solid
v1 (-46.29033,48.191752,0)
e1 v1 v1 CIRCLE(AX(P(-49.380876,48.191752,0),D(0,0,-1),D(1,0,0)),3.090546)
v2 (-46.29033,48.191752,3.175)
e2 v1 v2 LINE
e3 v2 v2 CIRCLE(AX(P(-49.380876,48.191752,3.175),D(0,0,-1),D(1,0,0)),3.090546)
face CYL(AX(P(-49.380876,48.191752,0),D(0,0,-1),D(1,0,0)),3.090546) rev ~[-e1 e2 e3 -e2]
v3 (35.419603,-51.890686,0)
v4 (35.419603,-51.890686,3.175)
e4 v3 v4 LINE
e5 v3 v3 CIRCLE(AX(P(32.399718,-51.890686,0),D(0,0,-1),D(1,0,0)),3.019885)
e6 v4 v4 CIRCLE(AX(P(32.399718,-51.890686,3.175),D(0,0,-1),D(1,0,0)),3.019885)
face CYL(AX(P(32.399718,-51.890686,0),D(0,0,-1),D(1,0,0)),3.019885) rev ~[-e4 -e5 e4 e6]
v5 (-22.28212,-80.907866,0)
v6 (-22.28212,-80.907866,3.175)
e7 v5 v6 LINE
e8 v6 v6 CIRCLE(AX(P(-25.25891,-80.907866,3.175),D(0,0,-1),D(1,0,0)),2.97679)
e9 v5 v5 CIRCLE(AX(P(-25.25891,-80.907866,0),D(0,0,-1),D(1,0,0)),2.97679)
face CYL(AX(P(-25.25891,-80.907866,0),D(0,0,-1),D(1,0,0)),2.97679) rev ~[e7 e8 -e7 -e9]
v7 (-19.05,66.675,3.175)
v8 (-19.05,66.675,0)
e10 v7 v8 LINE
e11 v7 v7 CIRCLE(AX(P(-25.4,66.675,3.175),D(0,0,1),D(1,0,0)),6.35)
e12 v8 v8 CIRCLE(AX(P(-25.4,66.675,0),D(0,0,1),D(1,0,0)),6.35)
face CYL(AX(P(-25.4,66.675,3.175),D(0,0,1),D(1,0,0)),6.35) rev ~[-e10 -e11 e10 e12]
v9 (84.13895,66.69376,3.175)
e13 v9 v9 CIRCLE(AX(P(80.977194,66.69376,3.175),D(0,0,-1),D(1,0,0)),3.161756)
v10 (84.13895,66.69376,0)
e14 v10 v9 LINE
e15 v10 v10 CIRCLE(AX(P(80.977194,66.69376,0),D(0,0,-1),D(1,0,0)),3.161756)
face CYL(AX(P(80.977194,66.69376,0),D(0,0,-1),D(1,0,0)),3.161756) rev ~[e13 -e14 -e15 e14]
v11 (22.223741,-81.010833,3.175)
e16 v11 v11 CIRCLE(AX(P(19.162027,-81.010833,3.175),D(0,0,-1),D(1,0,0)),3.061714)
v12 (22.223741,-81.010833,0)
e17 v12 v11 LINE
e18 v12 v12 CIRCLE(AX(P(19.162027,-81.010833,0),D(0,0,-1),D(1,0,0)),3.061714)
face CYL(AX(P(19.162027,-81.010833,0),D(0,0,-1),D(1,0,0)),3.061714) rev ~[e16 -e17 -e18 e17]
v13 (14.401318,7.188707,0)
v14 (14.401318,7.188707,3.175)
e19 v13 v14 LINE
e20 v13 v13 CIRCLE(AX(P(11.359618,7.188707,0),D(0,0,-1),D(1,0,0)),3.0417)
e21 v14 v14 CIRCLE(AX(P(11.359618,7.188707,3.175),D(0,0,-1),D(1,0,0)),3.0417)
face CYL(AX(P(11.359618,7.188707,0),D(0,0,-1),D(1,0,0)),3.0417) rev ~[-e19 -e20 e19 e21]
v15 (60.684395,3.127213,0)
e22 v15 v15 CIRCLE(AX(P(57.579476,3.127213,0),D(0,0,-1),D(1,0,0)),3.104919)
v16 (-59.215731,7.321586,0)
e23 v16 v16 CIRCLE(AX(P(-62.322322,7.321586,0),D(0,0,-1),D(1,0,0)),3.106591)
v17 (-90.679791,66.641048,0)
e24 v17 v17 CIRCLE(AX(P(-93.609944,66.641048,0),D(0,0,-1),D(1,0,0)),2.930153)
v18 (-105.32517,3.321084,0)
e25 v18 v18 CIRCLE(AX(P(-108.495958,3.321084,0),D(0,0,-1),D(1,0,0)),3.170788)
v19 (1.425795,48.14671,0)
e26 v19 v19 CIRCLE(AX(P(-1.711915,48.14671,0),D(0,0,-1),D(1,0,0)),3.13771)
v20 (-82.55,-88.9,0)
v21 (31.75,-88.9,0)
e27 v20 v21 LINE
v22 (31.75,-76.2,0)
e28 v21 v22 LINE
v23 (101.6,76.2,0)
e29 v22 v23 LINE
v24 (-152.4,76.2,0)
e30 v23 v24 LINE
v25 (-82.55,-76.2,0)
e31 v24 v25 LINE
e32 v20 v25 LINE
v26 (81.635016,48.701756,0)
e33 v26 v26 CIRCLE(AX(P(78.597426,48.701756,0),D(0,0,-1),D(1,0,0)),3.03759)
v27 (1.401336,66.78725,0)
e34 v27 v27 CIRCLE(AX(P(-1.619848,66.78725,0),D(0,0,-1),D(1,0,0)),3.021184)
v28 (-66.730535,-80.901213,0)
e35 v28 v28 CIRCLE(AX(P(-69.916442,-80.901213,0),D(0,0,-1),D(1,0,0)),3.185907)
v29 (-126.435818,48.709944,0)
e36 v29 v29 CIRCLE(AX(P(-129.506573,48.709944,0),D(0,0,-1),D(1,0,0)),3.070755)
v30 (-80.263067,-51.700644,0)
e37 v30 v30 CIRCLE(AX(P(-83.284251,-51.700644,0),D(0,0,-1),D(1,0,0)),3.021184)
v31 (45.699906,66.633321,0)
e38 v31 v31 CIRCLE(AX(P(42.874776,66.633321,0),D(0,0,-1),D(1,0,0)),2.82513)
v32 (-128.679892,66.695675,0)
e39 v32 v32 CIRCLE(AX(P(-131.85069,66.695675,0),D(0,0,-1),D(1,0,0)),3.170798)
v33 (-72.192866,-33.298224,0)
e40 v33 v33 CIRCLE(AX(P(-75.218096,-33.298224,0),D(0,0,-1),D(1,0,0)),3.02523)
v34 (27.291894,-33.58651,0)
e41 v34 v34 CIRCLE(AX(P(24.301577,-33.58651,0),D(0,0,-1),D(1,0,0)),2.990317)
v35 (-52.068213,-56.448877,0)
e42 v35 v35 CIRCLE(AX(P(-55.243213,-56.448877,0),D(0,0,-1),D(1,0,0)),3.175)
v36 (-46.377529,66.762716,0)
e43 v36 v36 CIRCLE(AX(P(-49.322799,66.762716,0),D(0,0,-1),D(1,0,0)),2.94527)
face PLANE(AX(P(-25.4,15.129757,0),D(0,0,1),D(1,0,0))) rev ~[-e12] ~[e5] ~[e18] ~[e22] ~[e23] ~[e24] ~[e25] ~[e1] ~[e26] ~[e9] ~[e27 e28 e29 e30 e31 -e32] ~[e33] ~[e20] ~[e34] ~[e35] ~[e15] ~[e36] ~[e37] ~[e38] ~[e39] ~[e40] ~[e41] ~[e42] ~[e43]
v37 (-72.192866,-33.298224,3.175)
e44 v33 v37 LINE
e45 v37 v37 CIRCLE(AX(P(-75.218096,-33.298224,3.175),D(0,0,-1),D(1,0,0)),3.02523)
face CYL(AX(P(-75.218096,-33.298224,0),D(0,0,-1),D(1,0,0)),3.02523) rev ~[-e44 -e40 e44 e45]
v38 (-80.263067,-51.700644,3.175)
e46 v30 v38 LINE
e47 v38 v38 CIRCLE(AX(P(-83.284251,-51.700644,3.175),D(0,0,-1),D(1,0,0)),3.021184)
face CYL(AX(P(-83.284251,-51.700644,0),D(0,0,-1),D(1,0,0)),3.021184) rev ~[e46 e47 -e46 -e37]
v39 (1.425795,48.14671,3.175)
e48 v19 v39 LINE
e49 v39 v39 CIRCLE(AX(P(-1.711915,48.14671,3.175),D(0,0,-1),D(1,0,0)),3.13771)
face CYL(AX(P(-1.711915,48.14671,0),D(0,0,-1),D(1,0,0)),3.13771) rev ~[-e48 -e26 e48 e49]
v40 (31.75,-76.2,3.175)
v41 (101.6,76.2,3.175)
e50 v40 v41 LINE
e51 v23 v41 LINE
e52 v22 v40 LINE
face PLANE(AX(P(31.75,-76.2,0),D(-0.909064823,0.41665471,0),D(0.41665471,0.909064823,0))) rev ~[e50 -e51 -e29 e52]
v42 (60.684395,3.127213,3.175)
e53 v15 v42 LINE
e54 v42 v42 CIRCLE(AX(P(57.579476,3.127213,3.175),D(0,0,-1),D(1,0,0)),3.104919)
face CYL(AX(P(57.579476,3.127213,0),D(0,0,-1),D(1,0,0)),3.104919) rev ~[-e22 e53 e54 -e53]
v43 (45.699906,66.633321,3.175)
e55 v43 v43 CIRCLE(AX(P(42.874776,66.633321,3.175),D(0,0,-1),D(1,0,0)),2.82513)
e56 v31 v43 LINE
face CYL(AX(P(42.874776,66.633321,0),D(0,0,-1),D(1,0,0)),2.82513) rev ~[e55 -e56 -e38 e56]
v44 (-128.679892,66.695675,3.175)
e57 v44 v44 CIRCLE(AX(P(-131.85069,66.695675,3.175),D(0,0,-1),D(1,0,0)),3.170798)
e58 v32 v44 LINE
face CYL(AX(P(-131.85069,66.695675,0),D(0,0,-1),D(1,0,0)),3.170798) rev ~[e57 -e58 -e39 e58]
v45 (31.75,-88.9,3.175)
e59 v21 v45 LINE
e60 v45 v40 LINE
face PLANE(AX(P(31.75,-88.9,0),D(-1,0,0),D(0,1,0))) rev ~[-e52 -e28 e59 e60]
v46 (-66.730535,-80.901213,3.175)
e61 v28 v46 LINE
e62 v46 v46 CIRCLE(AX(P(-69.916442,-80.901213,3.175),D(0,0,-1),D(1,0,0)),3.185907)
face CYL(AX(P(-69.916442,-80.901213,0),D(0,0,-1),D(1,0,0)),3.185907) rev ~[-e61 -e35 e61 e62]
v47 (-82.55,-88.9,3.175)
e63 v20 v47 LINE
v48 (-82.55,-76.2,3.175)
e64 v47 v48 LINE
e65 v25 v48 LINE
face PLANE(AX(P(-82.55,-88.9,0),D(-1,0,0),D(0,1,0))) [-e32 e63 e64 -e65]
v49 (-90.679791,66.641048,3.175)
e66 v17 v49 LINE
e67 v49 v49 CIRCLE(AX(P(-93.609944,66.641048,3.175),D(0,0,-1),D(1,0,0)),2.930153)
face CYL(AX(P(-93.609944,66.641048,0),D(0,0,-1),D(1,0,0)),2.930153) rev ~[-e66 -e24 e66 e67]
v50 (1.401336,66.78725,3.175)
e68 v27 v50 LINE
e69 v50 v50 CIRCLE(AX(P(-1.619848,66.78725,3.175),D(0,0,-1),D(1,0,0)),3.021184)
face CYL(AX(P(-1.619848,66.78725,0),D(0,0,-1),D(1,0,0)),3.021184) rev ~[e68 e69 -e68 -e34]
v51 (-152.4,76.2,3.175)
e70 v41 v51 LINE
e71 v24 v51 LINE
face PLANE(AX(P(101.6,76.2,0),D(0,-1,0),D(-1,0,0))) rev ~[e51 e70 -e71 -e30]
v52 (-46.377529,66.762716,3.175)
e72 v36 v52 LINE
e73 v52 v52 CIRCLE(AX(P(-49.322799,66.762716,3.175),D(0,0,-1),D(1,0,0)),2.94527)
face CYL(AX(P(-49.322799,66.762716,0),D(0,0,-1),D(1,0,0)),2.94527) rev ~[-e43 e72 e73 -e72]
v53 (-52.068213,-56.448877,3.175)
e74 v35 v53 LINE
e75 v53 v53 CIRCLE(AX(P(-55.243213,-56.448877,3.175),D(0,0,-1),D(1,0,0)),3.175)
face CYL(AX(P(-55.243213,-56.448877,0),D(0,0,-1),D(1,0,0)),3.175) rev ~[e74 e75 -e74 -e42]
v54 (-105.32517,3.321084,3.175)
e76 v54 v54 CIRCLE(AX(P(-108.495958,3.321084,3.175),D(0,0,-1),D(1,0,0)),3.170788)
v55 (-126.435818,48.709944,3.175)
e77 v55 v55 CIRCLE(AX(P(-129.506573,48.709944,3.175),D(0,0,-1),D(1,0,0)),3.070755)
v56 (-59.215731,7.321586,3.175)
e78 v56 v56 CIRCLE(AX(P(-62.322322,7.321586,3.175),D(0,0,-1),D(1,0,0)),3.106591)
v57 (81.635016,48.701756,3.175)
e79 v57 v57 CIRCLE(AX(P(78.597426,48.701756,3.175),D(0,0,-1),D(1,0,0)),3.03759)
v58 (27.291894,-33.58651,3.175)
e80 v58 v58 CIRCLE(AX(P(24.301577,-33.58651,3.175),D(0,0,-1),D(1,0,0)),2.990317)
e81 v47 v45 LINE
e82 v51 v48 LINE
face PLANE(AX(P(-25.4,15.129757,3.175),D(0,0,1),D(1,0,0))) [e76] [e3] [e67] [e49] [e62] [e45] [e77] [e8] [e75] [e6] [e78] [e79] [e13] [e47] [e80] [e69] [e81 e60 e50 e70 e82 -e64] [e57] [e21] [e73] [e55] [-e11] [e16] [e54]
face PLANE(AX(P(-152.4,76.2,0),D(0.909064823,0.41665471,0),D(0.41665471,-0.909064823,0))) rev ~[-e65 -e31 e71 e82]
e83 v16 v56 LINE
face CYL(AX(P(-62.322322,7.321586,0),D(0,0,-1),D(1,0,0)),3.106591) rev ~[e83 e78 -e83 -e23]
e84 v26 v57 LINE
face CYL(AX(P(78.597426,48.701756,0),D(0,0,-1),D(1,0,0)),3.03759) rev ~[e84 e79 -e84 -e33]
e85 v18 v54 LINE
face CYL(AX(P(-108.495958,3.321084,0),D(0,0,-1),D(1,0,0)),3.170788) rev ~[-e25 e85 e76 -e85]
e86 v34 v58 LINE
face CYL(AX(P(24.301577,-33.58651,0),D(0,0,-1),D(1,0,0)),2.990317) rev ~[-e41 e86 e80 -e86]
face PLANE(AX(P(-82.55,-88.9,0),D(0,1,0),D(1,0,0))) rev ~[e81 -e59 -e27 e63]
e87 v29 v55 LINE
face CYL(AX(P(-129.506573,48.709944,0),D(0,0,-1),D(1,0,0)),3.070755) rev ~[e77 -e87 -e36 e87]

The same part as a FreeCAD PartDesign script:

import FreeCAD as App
import Part
import Sketcher
Q = App.Units.Quantity


def add_polygon(sketch, points):
    """Adds a closed chain of lines whose ends are joined by coincident constraints."""
    first, n = sketch.GeometryCount, len(points)
    for a, b in zip(points, points[1:] + points[:1]):
        sketch.addGeometry(Part.LineSegment(App.Vector(*a, 0), App.Vector(*b, 0)), False)
    for i in range(n):
        sketch.addConstraint(Sketcher.Constraint("Coincident", first + i, 2, first + (i + 1) % n, 1))

doc = App.newDocument("Part")
params = doc.addObject("Spreadsheet::Sheet", "Params")
for row, (alias, value) in enumerate([
    ("sketch1_width", "10 in"),
    ("sketch1_width2", "4.5 in"),
    ("sketch1_height", "0.5 in"),
    ("pad1_length", "0.125 in"),
    ("sketch2_diameter", "0.5 in"),
    ("pocket1_length", "1 in"),
    ("pocket2_length", "1 in"),
    ("pocket3_length", "1 in"),
    ("sketch5_diameter", "0.25 in"),
    ("pocket4_length", "1 in"),
], start=1):
    params.set(f"A{row}", alias)
    params.set(f"B{row}", "=" + value)
    params.setAlias(f"B{row}", alias)

body = doc.addObject("PartDesign::Body", "Body")

sketch1 = body.newObject("Sketcher::SketchObject", "Sketch")
sketch1.AttachmentSupport = (doc.getObject("XY_Plane"), [""])
sketch1.MapMode = "FlatFace"
add_polygon(sketch1, [(31.75, -76.2), (101.6, 76.2), (-152.4, 76.2), (-82.55, -76.2), (-82.55, -88.9), (31.75, -88.9)])
sketch1.addConstraint([
    Sketcher.Constraint("Horizontal", 1),
    Sketcher.Constraint("Vertical", 3),
    Sketcher.Constraint("Horizontal", 4),
    Sketcher.Constraint("Vertical", 5),
    Sketcher.Constraint("Horizontal", 2, 2, 5, 2),
    Sketcher.Constraint("Equal", 0, 2),
    Sketcher.Constraint("DistanceX", 1, 2, 1, 1, Q("10 in")),
    Sketcher.Constraint("DistanceX", 4, 1, 4, 2, Q("4.5 in")),
    Sketcher.Constraint("DistanceY", 3, 2, 3, 1, Q("0.5 in")),
    Sketcher.Constraint("DistanceX", -1, 1, 0, 2, Q("4 in")),
    Sketcher.Constraint("DistanceY", -1, 1, 0, 2, Q("3 in")),
    Sketcher.Constraint("DistanceY", 2, 2, -1, 1, Q("3 in")),
])
sketch1.setExpression("Constraints[12]", "Params.sketch1_width")
sketch1.setExpression("Constraints[13]", "Params.sketch1_width2")
sketch1.setExpression("Constraints[14]", "Params.sketch1_height")
pad1 = body.newObject("PartDesign::Pad", "Pad")
pad1.Profile = sketch1
pad1.setExpression("Length", "Params.pad1_length")

sketch2 = body.newObject("Sketcher::SketchObject", "Sketch001")
sketch2.AttachmentSupport = (doc.getObject("XY_Plane"), [""])
sketch2.MapMode = "FlatFace"
sketch2.AttachmentOffset = App.Placement(App.Vector(0, 0, 0.125 * 25.4), App.Rotation())
sketch2.addGeometry(Part.Circle(App.Vector(-25.4, 66.675, 0), App.Vector(0, 0, 1), 6.35), False)
sketch2.addConstraint([
    Sketcher.Constraint("Diameter", 0, Q("0.5 in")),
    Sketcher.Constraint("DistanceX", 0, 3, -1, 1, Q("1 in")),
    Sketcher.Constraint("DistanceY", -1, 1, 0, 3, Q("2.625 in")),
])
sketch2.setExpression("Constraints[0]", "Params.sketch2_diameter")
pocket1 = body.newObject("PartDesign::Pocket", "Pocket")
pocket1.Profile = sketch2
pocket1.setExpression("Length", "Params.pocket1_length")

sketch3 = body.newObject("Sketcher::SketchObject", "Sketch002")
sketch3.AttachmentSupport = (doc.getObject("XY_Plane"), [""])
sketch3.MapMode = "FlatFace"
sketch3.addGeometry([
    Part.Circle(App.Vector(-83.284251, -51.700644, 0), App.Vector(0, 0, 1), 3.021184),
    Part.Circle(App.Vector(-75.218096, -33.298224, 0), App.Vector(0, 0, 1), 3.02523),
    Part.Circle(App.Vector(-108.495958, 3.321084, 0), App.Vector(0, 0, 1), 3.170788),
    Part.Circle(App.Vector(-129.506573, 48.709944, 0), App.Vector(0, 0, 1), 3.070755),
    Part.Circle(App.Vector(-131.85069, 66.695675, 0), App.Vector(0, 0, 1), 3.170798),
    Part.Circle(App.Vector(-93.609944, 66.641048, 0), App.Vector(0, 0, 1), 2.930153),
    Part.Circle(App.Vector(-49.322799, 66.762716, 0), App.Vector(0, 0, 1), 2.94527),
    Part.Circle(App.Vector(-49.380876, 48.191752, 0), App.Vector(0, 0, 1), 3.090546),
    Part.Circle(App.Vector(-62.322322, 7.321586, 0), App.Vector(0, 0, 1), 3.106591),
    Part.Circle(App.Vector(-1.619848, 66.78725, 0), App.Vector(0, 0, 1), 3.021184),
    Part.Circle(App.Vector(42.874776, 66.633321, 0), App.Vector(0, 0, 1), 2.82513),
    Part.Circle(App.Vector(80.977194, 66.69376, 0), App.Vector(0, 0, 1), 3.161756),
    Part.Circle(App.Vector(78.597426, 48.701756, 0), App.Vector(0, 0, 1), 3.03759),
    Part.Circle(App.Vector(-1.711915, 48.14671, 0), App.Vector(0, 0, 1), 3.13771),
    Part.Circle(App.Vector(11.359618, 7.188707, 0), App.Vector(0, 0, 1), 3.0417),
    Part.Circle(App.Vector(57.579476, 3.127213, 0), App.Vector(0, 0, 1), 3.104919),
    Part.Circle(App.Vector(24.301577, -33.58651, 0), App.Vector(0, 0, 1), 2.990317),
    Part.Circle(App.Vector(32.399718, -51.890686, 0), App.Vector(0, 0, 1), 3.019885),
], False)
sketch3.addConstraint([
    Sketcher.Constraint("Equal", 0, 9),
    Sketcher.Constraint("Diameter", 14, 6.0834),
    Sketcher.Constraint("Diameter", 1, 6.05046),
    Sketcher.Constraint("Diameter", 3, 6.14151),
    Sketcher.Constraint("Diameter", 6, 5.89054),
    Sketcher.Constraint("Diameter", 7, 6.181092),
    Sketcher.Constraint("Diameter", 8, 6.213182),
    Sketcher.Constraint("Diameter", 10, 5.65026),
    Sketcher.Constraint("Diameter", 12, 6.07518),
    Sketcher.Constraint("Diameter", 13, 6.27542),
    Sketcher.Constraint("Diameter", 15, 6.209838),
    Sketcher.Constraint("Diameter", 17, 6.03977),
    Sketcher.Constraint("Diameter", 0, 6.042368),
    Sketcher.Constraint("Diameter", 2, 6.341576),
    Sketcher.Constraint("Diameter", 4, 6.341596),
    Sketcher.Constraint("Diameter", 5, 5.860306),
    Sketcher.Constraint("Diameter", 11, 6.323512),
    Sketcher.Constraint("Diameter", 16, 5.980634),
    Sketcher.Constraint("DistanceX", 1, 3, 6, 3, Q("1.0194999 in")),
    Sketcher.Constraint("DistanceY", 2, 3, 8, 3, Q("0.1575001 in")),
    Sketcher.Constraint("DistanceX", 6, 3, -1, 1, 49.322799),
    Sketcher.Constraint("DistanceY", 1, 3, 4, 3, 99.993899),
    Sketcher.Constraint("DistanceX", 7, 3, 12, 3, 127.978302),
    Sketcher.Constraint("DistanceX", 10, 3, 15, 3, 14.7047),
    Sketcher.Constraint("DistanceX", 16, 3, 15, 3, 33.277899),
    Sketcher.Constraint("DistanceX", 8, 3, 16, 3, 86.623899),
    Sketcher.Constraint("DistanceY", 17, 3, 15, 3, 55.017899),
    Sketcher.Constraint("DistanceX", 14, 3, 17, 3, 21.0401),
    Sketcher.Constraint("DistanceX", 0, 3, -1, 1, 83.284251),
    Sketcher.Constraint("DistanceX", 2, 3, -1, 1, 108.495958),
    Sketcher.Constraint("DistanceX", 4, 3, -1, 1, 131.85069),
    Sketcher.Constraint("DistanceY", -1, 1, 9, 3, 66.78725),
    Sketcher.Constraint("DistanceY", -1, 1, 10, 3, 66.633321),
    Sketcher.Constraint("DistanceY", -1, 1, 11, 3, 66.69376),
    Sketcher.Constraint("DistanceY", -1, 1, 13, 3, 48.14671),
    Sketcher.Constraint("DistanceY", 16, 3, -1, 1, 33.58651),
    Sketcher.Constraint("DistanceY", 0, 3, 1, 3, 18.40242),
    Sketcher.Constraint("DistanceY", 2, 3, 3, 3, 45.38886),
    Sketcher.Constraint("DistanceY", 3, 3, 4, 3, 17.985731),
    Sketcher.Constraint("DistanceX", 3, 3, 5, 3, 35.896629),
    Sketcher.Constraint("DistanceY", 1, 3, 5, 3, 99.939272),
    Sketcher.Constraint("DistanceY", 3, 3, 6, 3, 18.052772),
    Sketcher.Constraint("DistanceY", 2, 3, 7, 3, 44.870668),
    Sketcher.Constraint("DistanceX", 0, 3, 8, 3, 20.961929),
    Sketcher.Constraint("DistanceX", 6, 3, 9, 3, 47.702951),
    Sketcher.Constraint("DistanceX", 7, 3, 9, 3, 47.761028),
    Sketcher.Constraint("DistanceY", 7, 3, 10, 3, 18.441569),
    Sketcher.Constraint("DistanceX", 5, 3, 10, 3, 136.48472),
    Sketcher.Constraint("DistanceX", 9, 3, 11, 3, 82.597042),
    Sketcher.Constraint("DistanceY", 12, 3, 6, 3, 18.06096),
    Sketcher.Constraint("DistanceX", 7, 3, 13, 3, 47.668961),
    Sketcher.Constraint("DistanceX", 8, 3, 14, 3, 73.68194),
    Sketcher.Constraint("DistanceY", 14, 3, 8, 3, 0.132879),
    Sketcher.Constraint("DistanceY", -1, 1, 15, 3, 3.127213),
])
pocket2 = body.newObject("PartDesign::Pocket", "Pocket001")
pocket2.Profile = sketch3
pocket2.setExpression("Length", "Params.pocket2_length")
pocket2.Reversed = True

sketch4 = body.newObject("Sketcher::SketchObject", "Sketch003")
sketch4.AttachmentSupport = (doc.getObject("XY_Plane"), [""])
sketch4.MapMode = "FlatFace"
sketch4.addGeometry([
    Part.Circle(App.Vector(-69.916442, -80.901213, 0), App.Vector(0, 0, 1), 3.185907),
    Part.Circle(App.Vector(-25.25891, -80.907866, 0), App.Vector(0, 0, 1), 2.97679),
    Part.Circle(App.Vector(19.162027, -81.010833, 0), App.Vector(0, 0, 1), 3.061714),
], False)
sketch4.addConstraint([
    Sketcher.Constraint("Diameter", 1, 5.95358),
    Sketcher.Constraint("Diameter", 0, 6.371814),
    Sketcher.Constraint("Diameter", 2, 6.123428),
    Sketcher.Constraint("DistanceX", 1, 3, -1, 1, 25.25891),
    Sketcher.Constraint("DistanceX", 0, 3, 2, 3, 89.078469),
    Sketcher.Constraint("DistanceY", 2, 3, 0, 3, 0.10962),
    Sketcher.Constraint("DistanceX", 0, 3, -1, 1, 69.916442),
    Sketcher.Constraint("DistanceY", 0, 3, -1, 1, 80.901213),
    Sketcher.Constraint("DistanceY", 1, 3, -1, 1, 80.907866),
])
pocket3 = body.newObject("PartDesign::Pocket", "Pocket002")
pocket3.Profile = sketch4
pocket3.setExpression("Length", "Params.pocket3_length")
pocket3.Reversed = True

sketch5 = body.newObject("Sketcher::SketchObject", "Sketch004")
sketch5.AttachmentSupport = (doc.getObject("XY_Plane"), [""])
sketch5.MapMode = "FlatFace"
sketch5.addGeometry(Part.Circle(App.Vector(-55.243213, -56.448877, 0), App.Vector(0, 0, 1), 3.175), False)
sketch5.addConstraint([
    Sketcher.Constraint("Diameter", 0, Q("0.25 in")),
    Sketcher.Constraint("DistanceX", 0, 3, -1, 1, 55.243213),
    Sketcher.Constraint("DistanceY", 0, 3, -1, 1, 56.448877),
])
sketch5.setExpression("Constraints[0]", "Params.sketch5_diameter")
pocket4 = body.newObject("PartDesign::Pocket", "Pocket003")
pocket4.Profile = sketch5
pocket4.setExpression("Length", "Params.pocket4_length")
pocket4.Reversed = True

doc.recompute()
